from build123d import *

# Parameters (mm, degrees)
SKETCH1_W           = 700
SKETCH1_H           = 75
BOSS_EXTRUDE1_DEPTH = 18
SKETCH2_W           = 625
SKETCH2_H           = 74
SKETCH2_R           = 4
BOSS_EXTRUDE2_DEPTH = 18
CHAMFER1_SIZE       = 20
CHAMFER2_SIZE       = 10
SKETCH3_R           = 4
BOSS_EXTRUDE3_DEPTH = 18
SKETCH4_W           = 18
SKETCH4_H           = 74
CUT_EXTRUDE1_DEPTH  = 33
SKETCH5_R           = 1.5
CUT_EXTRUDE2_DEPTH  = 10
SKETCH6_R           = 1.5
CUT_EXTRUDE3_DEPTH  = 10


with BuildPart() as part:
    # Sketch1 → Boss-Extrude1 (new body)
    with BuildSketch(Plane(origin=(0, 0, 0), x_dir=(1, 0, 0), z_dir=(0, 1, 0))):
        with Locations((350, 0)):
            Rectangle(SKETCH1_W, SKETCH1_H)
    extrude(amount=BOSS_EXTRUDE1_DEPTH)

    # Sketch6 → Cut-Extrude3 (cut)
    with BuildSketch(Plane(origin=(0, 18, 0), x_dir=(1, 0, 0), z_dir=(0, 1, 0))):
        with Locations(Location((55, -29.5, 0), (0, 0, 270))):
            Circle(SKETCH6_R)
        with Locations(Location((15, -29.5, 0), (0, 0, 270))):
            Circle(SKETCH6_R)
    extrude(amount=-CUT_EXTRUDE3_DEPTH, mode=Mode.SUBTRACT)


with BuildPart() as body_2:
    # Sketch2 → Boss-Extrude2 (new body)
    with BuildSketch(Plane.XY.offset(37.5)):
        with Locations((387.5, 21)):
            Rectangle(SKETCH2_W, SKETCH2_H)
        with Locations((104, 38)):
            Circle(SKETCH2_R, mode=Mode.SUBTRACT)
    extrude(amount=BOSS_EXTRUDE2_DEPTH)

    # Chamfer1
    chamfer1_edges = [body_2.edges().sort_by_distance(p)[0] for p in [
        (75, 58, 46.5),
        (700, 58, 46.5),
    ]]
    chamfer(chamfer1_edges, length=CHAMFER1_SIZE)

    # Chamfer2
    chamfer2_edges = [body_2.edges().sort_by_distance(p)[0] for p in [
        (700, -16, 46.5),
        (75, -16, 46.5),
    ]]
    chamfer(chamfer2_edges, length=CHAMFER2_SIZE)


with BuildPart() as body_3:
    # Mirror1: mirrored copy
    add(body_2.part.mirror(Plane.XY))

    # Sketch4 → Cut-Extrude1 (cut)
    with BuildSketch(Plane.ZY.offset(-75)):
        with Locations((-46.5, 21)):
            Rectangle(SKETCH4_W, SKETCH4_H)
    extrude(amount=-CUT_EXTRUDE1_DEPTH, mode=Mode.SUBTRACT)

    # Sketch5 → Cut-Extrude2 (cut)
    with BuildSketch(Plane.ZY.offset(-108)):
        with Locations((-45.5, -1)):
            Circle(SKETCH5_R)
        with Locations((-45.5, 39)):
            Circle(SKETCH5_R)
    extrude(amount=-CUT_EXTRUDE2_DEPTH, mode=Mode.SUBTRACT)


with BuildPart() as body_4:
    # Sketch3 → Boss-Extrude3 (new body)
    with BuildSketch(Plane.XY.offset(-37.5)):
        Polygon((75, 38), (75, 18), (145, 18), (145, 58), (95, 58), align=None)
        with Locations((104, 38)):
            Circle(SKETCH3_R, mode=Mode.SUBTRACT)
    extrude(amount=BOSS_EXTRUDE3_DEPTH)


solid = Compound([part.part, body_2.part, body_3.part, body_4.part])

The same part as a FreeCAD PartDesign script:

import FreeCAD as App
import Part
import Sketcher
Q = App.Units.Quantity


def edges_at(feature, points):
    """Names of the edges that pass closest to the given points."""
    edges = feature.Shape.Edges
    near = lambda p: min(range(len(edges)), key=lambda i: edges[i].distToShape(Part.Vertex(*p))[0])
    return sorted({f"Edge{near(p) + 1}" for p in points})


def add_polygon(sketch, points):
    """Adds a closed chain of lines whose ends are joined by coincident constraints."""
    first, n = sketch.GeometryCount, len(points)
    for a, b in zip(points, points[1:] + points[:1]):
        sketch.addGeometry(Part.LineSegment(App.Vector(*a, 0), App.Vector(*b, 0)), False)
    for i in range(n):
        sketch.addConstraint(Sketcher.Constraint("Coincident", first + i, 2, first + (i + 1) % n, 1))

doc = App.newDocument("Part")
body = doc.addObject("PartDesign::Body", "Body")

sketch1 = doc.addObject("Sketcher::SketchObject", "Sketch")
body.addObject(sketch1)
sketch1.AttachmentSupport = (doc.XZ_Plane, [""])
sketch1.MapMode = "FlatFace"
add_polygon(sketch1, [(0, -38), (0, 38), (700, 38), (700, -38)])
sketch1.addConstraint([
    Sketcher.Constraint("Vertical", 0),
    Sketcher.Constraint("Horizontal", 1),
    Sketcher.Constraint("Vertical", 2),
    Sketcher.Constraint("Horizontal", 3),
    Sketcher.Constraint("Symmetric", 0, 2, 3, 2, -1, 1),
    Sketcher.Constraint("DistanceX", 1, 1, 1, 2, Q("700 mm")),
    Sketcher.Constraint("DistanceY", 0, 1, 0, 2, Q("75 mm")),
])
pad1 = doc.addObject("PartDesign::Pad", "Pad")
body.addObject(pad1)
pad1.Profile = sketch1
pad1.Length = 18
pad1.Reversed = True

sketch2 = doc.addObject("Sketcher::SketchObject", "Sketch001")
body.addObject(sketch2)
sketch2.AttachmentSupport = (doc.XZ_Plane, [""])
sketch2.MapMode = "FlatFace"
sketch2.AttachmentOffset = App.Placement(App.Vector(0, 0, -18), App.Rotation())
sketch2.addGeometry([
    Part.Circle(App.Vector(55, 29.5, 0), App.Vector(0, 0, 1), 1.5),
    Part.Circle(App.Vector(15, 29.5, 0), App.Vector(0, 0, 1), 1.5),
], False)
sketch2.addConstraint([
    Sketcher.Constraint("Equal", 0, 1),
    Sketcher.Constraint("Horizontal", 0, 3, 1, 3),
    Sketcher.Constraint("Diameter", 0, Q("3 mm")),
    Sketcher.Constraint("DistanceX", -1, 1, 0, 3, Q("55 mm")),
    Sketcher.Constraint("DistanceX", -1, 1, 1, 3, Q("15 mm")),
    Sketcher.Constraint("DistanceY", -1, 1, 0, 3, Q("29.5 mm")),
])
pocket1 = doc.addObject("PartDesign::Pocket", "Pocket")
body.addObject(pocket1)
pocket1.Profile = sketch2
pocket1.Length = 10
pocket1.Reversed = True
body2 = doc.addObject("PartDesign::Body", "Body001")

sketch3 = doc.addObject("Sketcher::SketchObject", "Sketch002")
body2.addObject(sketch3)
sketch3.AttachmentSupport = (doc.getObject("XY_Plane001"), [""])
sketch3.MapMode = "FlatFace"
sketch3.AttachmentOffset = App.Placement(App.Vector(0, 0, 37.5), App.Rotation())
add_polygon(sketch3, [(75, 58), (75, -16), (700, -16), (700, 58)])
sketch3.addGeometry(Part.Circle(App.Vector(104, 38, 0), App.Vector(0, 0, 1), 4), False)
sketch3.addConstraint([
    Sketcher.Constraint("Vertical", 0),
    Sketcher.Constraint("Horizontal", 1),
    Sketcher.Constraint("Vertical", 2),
    Sketcher.Constraint("Horizontal", 3),
    Sketcher.Constraint("Diameter", 4, Q("8 mm")),
    Sketcher.Constraint("DistanceX", 1, 1, 1, 2, Q("625 mm")),
    Sketcher.Constraint("DistanceY", 0, 2, 0, 1, Q("74 mm")),
    Sketcher.Constraint("DistanceX", -1, 1, 4, 3, Q("104 mm")),
    Sketcher.Constraint("DistanceY", -1, 1, 4, 3, Q("38 mm")),
    Sketcher.Constraint("DistanceX", -1, 1, 0, 2, Q("75 mm")),
    Sketcher.Constraint("DistanceY", 0, 2, -1, 1, Q("16 mm")),
])
pad2 = doc.addObject("PartDesign::Pad", "Pad001")
body2.addObject(pad2)
pad2.Profile = sketch3
pad2.Length = 18
doc.recompute()

chamfer = doc.addObject("PartDesign::Chamfer", "Chamfer")
body2.addObject(chamfer)
chamfer.Base = (pad2, edges_at(pad2, [(75, 58, 46.5), (700, 58, 46.5)]))
chamfer.Size = 20
doc.recompute()

chamfer2 = doc.addObject("PartDesign::Chamfer", "Chamfer001")
body2.addObject(chamfer2)
chamfer2.Base = (chamfer, edges_at(chamfer, [(700, -16, 46.5), (75, -16, 46.5)]))
chamfer2.Size = 10
body3 = doc.addObject("PartDesign::Body", "Body002")
doc.recompute()

mirroring = doc.addObject("Part::Mirroring", "Mirroring")
mirroring.Source = body2
mirroring.Base = App.Vector(0, 0, 0)
mirroring.Normal = App.Vector(0, 0, 1)
body3.BaseFeature = mirroring
doc.recompute()

sketch4 = doc.addObject("Sketcher::SketchObject", "Sketch003")
body3.addObject(sketch4)
sketch4.AttachmentSupport = (doc.getObject("YZ_Plane002"), [""])
sketch4.MapMode = "FlatFace"
sketch4.AttachmentOffset = App.Placement(App.Vector(0, 0, 75), App.Rotation())
add_polygon(sketch4, [(58, -56), (-16, -56), (-16, -38), (58, -38)])
sketch4.addConstraint([
    Sketcher.Constraint("Horizontal", 0),
    Sketcher.Constraint("Vertical", 1),
    Sketcher.Constraint("Horizontal", 2),
    Sketcher.Constraint("Vertical", 3),
    Sketcher.Constraint("DistanceX", 0, 2, 0, 1, Q("74 mm")),
    Sketcher.Constraint("DistanceY", 1, 1, 1, 2, Q("18 mm")),
    Sketcher.Constraint("DistanceX", 0, 2, -1, 1, Q("16 mm")),
    Sketcher.Constraint("DistanceY", 0, 2, -1, 1, Q("55.5 mm")),
])
pocket2 = doc.addObject("PartDesign::Pocket", "Pocket001")
body3.addObject(pocket2)
pocket2.Profile = sketch4
pocket2.Length = 33
pocket2.Reversed = True

sketch5 = doc.addObject("Sketcher::SketchObject", "Sketch004")
body3.addObject(sketch5)
sketch5.AttachmentSupport = (doc.getObject("YZ_Plane002"), [""])
sketch5.MapMode = "FlatFace"
sketch5.AttachmentOffset = App.Placement(App.Vector(0, 0, 108), App.Rotation())
sketch5.addGeometry([
    Part.Circle(App.Vector(-1, -45.5, 0), App.Vector(0, 0, 1), 1.5),
    Part.Circle(App.Vector(39, -45.5, 0), App.Vector(0, 0, 1), 1.5),
], False)
sketch5.addConstraint([
    Sketcher.Constraint("Equal", 0, 1),
    Sketcher.Constraint("Horizontal", 0, 3, 1, 3),
    Sketcher.Constraint("Diameter", 0, Q("3 mm")),
    Sketcher.Constraint("DistanceX", 0, 3, -1, 1, Q("1 mm")),
    Sketcher.Constraint("DistanceX", -1, 1, 1, 3, Q("39 mm")),
    Sketcher.Constraint("DistanceY", 0, 3, -1, 1, Q("45.5 mm")),
])
pocket3 = doc.addObject("PartDesign::Pocket", "Pocket002")
body3.addObject(pocket3)
pocket3.Profile = sketch5
pocket3.Length = 10
pocket3.Reversed = True
body4 = doc.addObject("PartDesign::Body", "Body003")

sketch6 = doc.addObject("Sketcher::SketchObject", "Sketch005")
body4.addObject(sketch6)
sketch6.AttachmentSupport = (doc.getObject("XY_Plane003"), [""])
sketch6.MapMode = "FlatFace"
sketch6.AttachmentOffset = App.Placement(App.Vector(0, 0, -37.5), App.Rotation())
add_polygon(sketch6, [(75, 38), (75, 18), (145, 18), (145, 58), (95, 58)])
sketch6.addGeometry(Part.Circle(App.Vector(104, 38, 0), App.Vector(0, 0, 1), 4), False)
sketch6.addConstraint([
    Sketcher.Constraint("Vertical", 0),
    Sketcher.Constraint("Horizontal", 1),
    Sketcher.Constraint("Vertical", 2),
    Sketcher.Constraint("Horizontal", 3),
    Sketcher.Constraint("Horizontal", 5, 3, 4, 2),
    Sketcher.Constraint("Diameter", 5, Q("8 mm")),
    Sketcher.Constraint("DistanceX", 1, 1, 1, 2, Q("70 mm")),
    Sketcher.Constraint("DistanceX", 3, 2, 3, 1, Q("50 mm")),
    Sketcher.Constraint("DistanceY", 0, 2, 0, 1, Q("20 mm")),
    Sketcher.Constraint("DistanceY", 2, 1, 2, 2, Q("40 mm")),
    Sketcher.Constraint("DistanceX", -1, 1, 5, 3, Q("104 mm")),
    Sketcher.Constraint("DistanceY", -1, 1, 5, 3, Q("38 mm")),
    Sketcher.Constraint("DistanceX", -1, 1, 0, 2, Q("75 mm")),
])
pad3 = doc.addObject("PartDesign::Pad", "Pad002")
body4.addObject(pad3)
pad3.Profile = sketch6
pad3.Length = 18
mirroring.Visibility = False

doc.recompute()
